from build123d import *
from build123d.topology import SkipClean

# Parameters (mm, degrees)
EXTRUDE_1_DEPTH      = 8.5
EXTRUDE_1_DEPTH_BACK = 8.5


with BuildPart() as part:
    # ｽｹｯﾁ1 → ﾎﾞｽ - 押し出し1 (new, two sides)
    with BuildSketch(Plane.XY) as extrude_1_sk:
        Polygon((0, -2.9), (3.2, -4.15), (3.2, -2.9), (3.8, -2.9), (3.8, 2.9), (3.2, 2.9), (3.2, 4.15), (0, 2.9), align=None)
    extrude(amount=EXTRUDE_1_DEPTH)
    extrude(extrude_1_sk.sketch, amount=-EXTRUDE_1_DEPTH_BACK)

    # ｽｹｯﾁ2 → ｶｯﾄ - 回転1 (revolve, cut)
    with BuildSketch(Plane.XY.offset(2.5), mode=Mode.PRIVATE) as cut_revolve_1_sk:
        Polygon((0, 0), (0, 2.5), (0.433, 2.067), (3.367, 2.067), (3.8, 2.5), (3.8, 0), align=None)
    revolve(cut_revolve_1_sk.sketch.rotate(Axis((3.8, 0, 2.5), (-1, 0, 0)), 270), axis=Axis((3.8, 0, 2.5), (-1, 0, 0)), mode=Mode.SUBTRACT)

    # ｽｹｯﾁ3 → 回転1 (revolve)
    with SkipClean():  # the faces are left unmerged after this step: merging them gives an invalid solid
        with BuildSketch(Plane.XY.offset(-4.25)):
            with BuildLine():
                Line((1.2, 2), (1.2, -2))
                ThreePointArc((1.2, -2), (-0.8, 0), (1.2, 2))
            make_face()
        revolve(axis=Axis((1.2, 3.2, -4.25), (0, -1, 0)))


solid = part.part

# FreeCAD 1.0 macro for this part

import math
import FreeCAD as App
import Part
import Sketcher
from FreeCAD import Vector

doc = App.newDocument("Part")
body = doc.addObject("PartDesign::Body", "Body")

# Sketch on XY plane
sketch1 = doc.addObject("Sketcher::SketchObject", "Sketch")
body.addObject(sketch1)
sketch1.AttachmentSupport = (doc.XY_Plane, [""])
sketch1.MapMode = "FlatFace"
sketch1.addGeometry([
    Part.LineSegment(Vector(0, -2.9, 0), Vector(3.2, -4.2, 0)),  # 0
    Part.LineSegment(Vector(3.2, -4.2, 0), Vector(3.2, -2.9, 0)),  # 1
    Part.LineSegment(Vector(3.2, -2.9, 0), Vector(3.8, -2.9, 0)),  # 2
    Part.LineSegment(Vector(3.8, -2.9, 0), Vector(3.8, 2.9, 0)),  # 3
    Part.LineSegment(Vector(3.8, 2.9, 0), Vector(3.2, 2.9, 0)),  # 4
    Part.LineSegment(Vector(3.2, 2.9, 0), Vector(3.2, 4.2, 0)),  # 5
    Part.LineSegment(Vector(3.2, 4.2, 0), Vector(0, 2.9, 0)),  # 6
    Part.LineSegment(Vector(0, 2.9, 0), Vector(0, -2.9, 0)),  # 7
], False)
sketch1.addConstraint([
    Sketcher.Constraint("Coincident", 0, 2, 1, 1),
    Sketcher.Constraint("Coincident", 1, 2, 2, 1),
    Sketcher.Constraint("Coincident", 2, 2, 3, 1),
    Sketcher.Constraint("Coincident", 3, 2, 4, 1),
    Sketcher.Constraint("Coincident", 4, 2, 5, 1),
    Sketcher.Constraint("Coincident", 5, 2, 6, 1),
    Sketcher.Constraint("Coincident", 6, 2, 7, 1),
    Sketcher.Constraint("Coincident", 7, 2, 0, 1),
    Sketcher.Constraint("Vertical", 1),
    Sketcher.Constraint("Horizontal", 2),
    Sketcher.Constraint("Vertical", 3),
    Sketcher.Constraint("Horizontal", 4),
    Sketcher.Constraint("Vertical", 5),
    Sketcher.Constraint("Vertical", 7),
    Sketcher.Constraint("Symmetric", 6, 2, 7, 2, -1, 1),
    Sketcher.Constraint("Symmetric", 1, 2, 4, 2, -1),
    Sketcher.Constraint("Horizontal", 4, 2, 6, 2),
    Sketcher.Constraint("Equal", 1, 5),
    Sketcher.Constraint("DistanceX", 2, 1, 2, 2, 0.6),
    Sketcher.Constraint("DistanceY", 3, 1, 3, 2, 5.8),
    Sketcher.Constraint("DistanceY", 1, 1, 1, 2, 1.25),
    Sketcher.Constraint("DistanceX", -1, 1, 0, 2, 3.2),
])
pad1 = doc.addObject("PartDesign::Pad", "Pad")
body.addObject(pad1)
pad1.Profile = sketch1
pad1.Type = "TwoLengths"
pad1.Length = 8.5
pad1.Length2 = 8.5

# Sketch on XY plane
sketch2 = doc.addObject("Sketcher::SketchObject", "Sketch001")
body.addObject(sketch2)
sketch2.AttachmentSupport = (doc.XY_Plane, [""])
sketch2.MapMode = "FlatFace"
sketch2.AttachmentOffset = App.Placement(Vector(0, 0, 2.5), App.Rotation())
sketch2.addGeometry([
    Part.LineSegment(Vector(0, 2.5, 0), Vector(0, 0, 0)),  # 0
    Part.LineSegment(Vector(0, 0, 0), Vector(3.8, 0, 0)),  # 1
    Part.LineSegment(Vector(3.8, 0, 0), Vector(3.8, 2.5, 0)),  # 2
    Part.LineSegment(Vector(3.8, 2.5, 0), Vector(3.4, 2.1, 0)),  # 3
    Part.LineSegment(Vector(3.4, 2.1, 0), Vector(0.4, 2.1, 0)),  # 4
    Part.LineSegment(Vector(0.4, 2.1, 0), Vector(0, 2.5, 0)),  # 5
], False)
sketch2.addConstraint([
    Sketcher.Constraint("Coincident", 0, 2, 1, 1),
    Sketcher.Constraint("Coincident", 1, 2, 2, 1),
    Sketcher.Constraint("Coincident", 2, 2, 3, 1),
    Sketcher.Constraint("Coincident", 3, 2, 4, 1),
    Sketcher.Constraint("Coincident", 4, 2, 5, 1),
    Sketcher.Constraint("Coincident", 5, 2, 0, 1),
    Sketcher.Constraint("Vertical", 0),
    Sketcher.Constraint("Horizontal", 1),
    Sketcher.Constraint("Vertical", 2),
    Sketcher.Constraint("Horizontal", 4),
    Sketcher.Constraint("Coincident", 0, 2, -1, 1),
    Sketcher.Constraint("Perpendicular", 3, 5),
    Sketcher.Constraint("Horizontal", 2, 2, 5, 2),
    Sketcher.Constraint("Equal", 3, 5),
    Sketcher.Constraint("DistanceX", 1, 1, 1, 2, 3.8),
    Sketcher.Constraint("DistanceY", 0, 2, 0, 1, 2.5),
    Sketcher.Constraint("DistanceX", 4, 2, 4, 1, 2.934),
])
groove = doc.addObject("PartDesign::Groove", "Groove")
body.addObject(groove)
groove.Profile = sketch2
groove.ReferenceAxis = (sketch2, ["H_Axis"])
groove.Angle = 360

# Sketch on XY plane
sketch3 = doc.addObject("Sketcher::SketchObject", "Sketch002")
body.addObject(sketch3)
sketch3.AttachmentSupport = (doc.XY_Plane, [""])
sketch3.MapMode = "FlatFace"
sketch3.AttachmentOffset = App.Placement(Vector(0, 0, -4.25), App.Rotation())
sketch3.addGeometry([
    Part.LineSegment(Vector(1.2, -2, 0), Vector(1.2, 2, 0)),
    Part.ArcOfCircle(Part.Circle(Vector(1.2, 0, 0), Vector(0, 0, 1), 2), math.radians(90), math.radians(270)),
], False)
sketch3.addGeometry(Part.LineSegment(Vector(1.2, 2, 0), Vector(1.2, -2, 0)), True)  # axis
sketch3.addConstraint([
    Sketcher.Constraint("Coincident", 0, 1, 1, 2),
    Sketcher.Constraint("Coincident", 1, 1, 0, 2),
    Sketcher.Constraint("Vertical", 0),
    Sketcher.Constraint("Vertical", 2),
    Sketcher.Constraint("Coincident", 2, 1, 1, 1),
    Sketcher.Constraint("PointOnObject", 1, 3, -1),
    Sketcher.Constraint("Vertical", 1, 3, 0, 1),
    Sketcher.Constraint("Equal", 0, 2),
    Sketcher.Constraint("Radius", 1, 2.0),
    Sketcher.Constraint("DistanceX", -1, 1, 1, 3, 1.2),
])
revolution = doc.addObject("PartDesign::Revolution", "Revolution")
body.addObject(revolution)
revolution.Profile = sketch3
revolution.ReferenceAxis = (sketch3, ["Axis0"])
revolution.Angle = 360

doc.recompute()
